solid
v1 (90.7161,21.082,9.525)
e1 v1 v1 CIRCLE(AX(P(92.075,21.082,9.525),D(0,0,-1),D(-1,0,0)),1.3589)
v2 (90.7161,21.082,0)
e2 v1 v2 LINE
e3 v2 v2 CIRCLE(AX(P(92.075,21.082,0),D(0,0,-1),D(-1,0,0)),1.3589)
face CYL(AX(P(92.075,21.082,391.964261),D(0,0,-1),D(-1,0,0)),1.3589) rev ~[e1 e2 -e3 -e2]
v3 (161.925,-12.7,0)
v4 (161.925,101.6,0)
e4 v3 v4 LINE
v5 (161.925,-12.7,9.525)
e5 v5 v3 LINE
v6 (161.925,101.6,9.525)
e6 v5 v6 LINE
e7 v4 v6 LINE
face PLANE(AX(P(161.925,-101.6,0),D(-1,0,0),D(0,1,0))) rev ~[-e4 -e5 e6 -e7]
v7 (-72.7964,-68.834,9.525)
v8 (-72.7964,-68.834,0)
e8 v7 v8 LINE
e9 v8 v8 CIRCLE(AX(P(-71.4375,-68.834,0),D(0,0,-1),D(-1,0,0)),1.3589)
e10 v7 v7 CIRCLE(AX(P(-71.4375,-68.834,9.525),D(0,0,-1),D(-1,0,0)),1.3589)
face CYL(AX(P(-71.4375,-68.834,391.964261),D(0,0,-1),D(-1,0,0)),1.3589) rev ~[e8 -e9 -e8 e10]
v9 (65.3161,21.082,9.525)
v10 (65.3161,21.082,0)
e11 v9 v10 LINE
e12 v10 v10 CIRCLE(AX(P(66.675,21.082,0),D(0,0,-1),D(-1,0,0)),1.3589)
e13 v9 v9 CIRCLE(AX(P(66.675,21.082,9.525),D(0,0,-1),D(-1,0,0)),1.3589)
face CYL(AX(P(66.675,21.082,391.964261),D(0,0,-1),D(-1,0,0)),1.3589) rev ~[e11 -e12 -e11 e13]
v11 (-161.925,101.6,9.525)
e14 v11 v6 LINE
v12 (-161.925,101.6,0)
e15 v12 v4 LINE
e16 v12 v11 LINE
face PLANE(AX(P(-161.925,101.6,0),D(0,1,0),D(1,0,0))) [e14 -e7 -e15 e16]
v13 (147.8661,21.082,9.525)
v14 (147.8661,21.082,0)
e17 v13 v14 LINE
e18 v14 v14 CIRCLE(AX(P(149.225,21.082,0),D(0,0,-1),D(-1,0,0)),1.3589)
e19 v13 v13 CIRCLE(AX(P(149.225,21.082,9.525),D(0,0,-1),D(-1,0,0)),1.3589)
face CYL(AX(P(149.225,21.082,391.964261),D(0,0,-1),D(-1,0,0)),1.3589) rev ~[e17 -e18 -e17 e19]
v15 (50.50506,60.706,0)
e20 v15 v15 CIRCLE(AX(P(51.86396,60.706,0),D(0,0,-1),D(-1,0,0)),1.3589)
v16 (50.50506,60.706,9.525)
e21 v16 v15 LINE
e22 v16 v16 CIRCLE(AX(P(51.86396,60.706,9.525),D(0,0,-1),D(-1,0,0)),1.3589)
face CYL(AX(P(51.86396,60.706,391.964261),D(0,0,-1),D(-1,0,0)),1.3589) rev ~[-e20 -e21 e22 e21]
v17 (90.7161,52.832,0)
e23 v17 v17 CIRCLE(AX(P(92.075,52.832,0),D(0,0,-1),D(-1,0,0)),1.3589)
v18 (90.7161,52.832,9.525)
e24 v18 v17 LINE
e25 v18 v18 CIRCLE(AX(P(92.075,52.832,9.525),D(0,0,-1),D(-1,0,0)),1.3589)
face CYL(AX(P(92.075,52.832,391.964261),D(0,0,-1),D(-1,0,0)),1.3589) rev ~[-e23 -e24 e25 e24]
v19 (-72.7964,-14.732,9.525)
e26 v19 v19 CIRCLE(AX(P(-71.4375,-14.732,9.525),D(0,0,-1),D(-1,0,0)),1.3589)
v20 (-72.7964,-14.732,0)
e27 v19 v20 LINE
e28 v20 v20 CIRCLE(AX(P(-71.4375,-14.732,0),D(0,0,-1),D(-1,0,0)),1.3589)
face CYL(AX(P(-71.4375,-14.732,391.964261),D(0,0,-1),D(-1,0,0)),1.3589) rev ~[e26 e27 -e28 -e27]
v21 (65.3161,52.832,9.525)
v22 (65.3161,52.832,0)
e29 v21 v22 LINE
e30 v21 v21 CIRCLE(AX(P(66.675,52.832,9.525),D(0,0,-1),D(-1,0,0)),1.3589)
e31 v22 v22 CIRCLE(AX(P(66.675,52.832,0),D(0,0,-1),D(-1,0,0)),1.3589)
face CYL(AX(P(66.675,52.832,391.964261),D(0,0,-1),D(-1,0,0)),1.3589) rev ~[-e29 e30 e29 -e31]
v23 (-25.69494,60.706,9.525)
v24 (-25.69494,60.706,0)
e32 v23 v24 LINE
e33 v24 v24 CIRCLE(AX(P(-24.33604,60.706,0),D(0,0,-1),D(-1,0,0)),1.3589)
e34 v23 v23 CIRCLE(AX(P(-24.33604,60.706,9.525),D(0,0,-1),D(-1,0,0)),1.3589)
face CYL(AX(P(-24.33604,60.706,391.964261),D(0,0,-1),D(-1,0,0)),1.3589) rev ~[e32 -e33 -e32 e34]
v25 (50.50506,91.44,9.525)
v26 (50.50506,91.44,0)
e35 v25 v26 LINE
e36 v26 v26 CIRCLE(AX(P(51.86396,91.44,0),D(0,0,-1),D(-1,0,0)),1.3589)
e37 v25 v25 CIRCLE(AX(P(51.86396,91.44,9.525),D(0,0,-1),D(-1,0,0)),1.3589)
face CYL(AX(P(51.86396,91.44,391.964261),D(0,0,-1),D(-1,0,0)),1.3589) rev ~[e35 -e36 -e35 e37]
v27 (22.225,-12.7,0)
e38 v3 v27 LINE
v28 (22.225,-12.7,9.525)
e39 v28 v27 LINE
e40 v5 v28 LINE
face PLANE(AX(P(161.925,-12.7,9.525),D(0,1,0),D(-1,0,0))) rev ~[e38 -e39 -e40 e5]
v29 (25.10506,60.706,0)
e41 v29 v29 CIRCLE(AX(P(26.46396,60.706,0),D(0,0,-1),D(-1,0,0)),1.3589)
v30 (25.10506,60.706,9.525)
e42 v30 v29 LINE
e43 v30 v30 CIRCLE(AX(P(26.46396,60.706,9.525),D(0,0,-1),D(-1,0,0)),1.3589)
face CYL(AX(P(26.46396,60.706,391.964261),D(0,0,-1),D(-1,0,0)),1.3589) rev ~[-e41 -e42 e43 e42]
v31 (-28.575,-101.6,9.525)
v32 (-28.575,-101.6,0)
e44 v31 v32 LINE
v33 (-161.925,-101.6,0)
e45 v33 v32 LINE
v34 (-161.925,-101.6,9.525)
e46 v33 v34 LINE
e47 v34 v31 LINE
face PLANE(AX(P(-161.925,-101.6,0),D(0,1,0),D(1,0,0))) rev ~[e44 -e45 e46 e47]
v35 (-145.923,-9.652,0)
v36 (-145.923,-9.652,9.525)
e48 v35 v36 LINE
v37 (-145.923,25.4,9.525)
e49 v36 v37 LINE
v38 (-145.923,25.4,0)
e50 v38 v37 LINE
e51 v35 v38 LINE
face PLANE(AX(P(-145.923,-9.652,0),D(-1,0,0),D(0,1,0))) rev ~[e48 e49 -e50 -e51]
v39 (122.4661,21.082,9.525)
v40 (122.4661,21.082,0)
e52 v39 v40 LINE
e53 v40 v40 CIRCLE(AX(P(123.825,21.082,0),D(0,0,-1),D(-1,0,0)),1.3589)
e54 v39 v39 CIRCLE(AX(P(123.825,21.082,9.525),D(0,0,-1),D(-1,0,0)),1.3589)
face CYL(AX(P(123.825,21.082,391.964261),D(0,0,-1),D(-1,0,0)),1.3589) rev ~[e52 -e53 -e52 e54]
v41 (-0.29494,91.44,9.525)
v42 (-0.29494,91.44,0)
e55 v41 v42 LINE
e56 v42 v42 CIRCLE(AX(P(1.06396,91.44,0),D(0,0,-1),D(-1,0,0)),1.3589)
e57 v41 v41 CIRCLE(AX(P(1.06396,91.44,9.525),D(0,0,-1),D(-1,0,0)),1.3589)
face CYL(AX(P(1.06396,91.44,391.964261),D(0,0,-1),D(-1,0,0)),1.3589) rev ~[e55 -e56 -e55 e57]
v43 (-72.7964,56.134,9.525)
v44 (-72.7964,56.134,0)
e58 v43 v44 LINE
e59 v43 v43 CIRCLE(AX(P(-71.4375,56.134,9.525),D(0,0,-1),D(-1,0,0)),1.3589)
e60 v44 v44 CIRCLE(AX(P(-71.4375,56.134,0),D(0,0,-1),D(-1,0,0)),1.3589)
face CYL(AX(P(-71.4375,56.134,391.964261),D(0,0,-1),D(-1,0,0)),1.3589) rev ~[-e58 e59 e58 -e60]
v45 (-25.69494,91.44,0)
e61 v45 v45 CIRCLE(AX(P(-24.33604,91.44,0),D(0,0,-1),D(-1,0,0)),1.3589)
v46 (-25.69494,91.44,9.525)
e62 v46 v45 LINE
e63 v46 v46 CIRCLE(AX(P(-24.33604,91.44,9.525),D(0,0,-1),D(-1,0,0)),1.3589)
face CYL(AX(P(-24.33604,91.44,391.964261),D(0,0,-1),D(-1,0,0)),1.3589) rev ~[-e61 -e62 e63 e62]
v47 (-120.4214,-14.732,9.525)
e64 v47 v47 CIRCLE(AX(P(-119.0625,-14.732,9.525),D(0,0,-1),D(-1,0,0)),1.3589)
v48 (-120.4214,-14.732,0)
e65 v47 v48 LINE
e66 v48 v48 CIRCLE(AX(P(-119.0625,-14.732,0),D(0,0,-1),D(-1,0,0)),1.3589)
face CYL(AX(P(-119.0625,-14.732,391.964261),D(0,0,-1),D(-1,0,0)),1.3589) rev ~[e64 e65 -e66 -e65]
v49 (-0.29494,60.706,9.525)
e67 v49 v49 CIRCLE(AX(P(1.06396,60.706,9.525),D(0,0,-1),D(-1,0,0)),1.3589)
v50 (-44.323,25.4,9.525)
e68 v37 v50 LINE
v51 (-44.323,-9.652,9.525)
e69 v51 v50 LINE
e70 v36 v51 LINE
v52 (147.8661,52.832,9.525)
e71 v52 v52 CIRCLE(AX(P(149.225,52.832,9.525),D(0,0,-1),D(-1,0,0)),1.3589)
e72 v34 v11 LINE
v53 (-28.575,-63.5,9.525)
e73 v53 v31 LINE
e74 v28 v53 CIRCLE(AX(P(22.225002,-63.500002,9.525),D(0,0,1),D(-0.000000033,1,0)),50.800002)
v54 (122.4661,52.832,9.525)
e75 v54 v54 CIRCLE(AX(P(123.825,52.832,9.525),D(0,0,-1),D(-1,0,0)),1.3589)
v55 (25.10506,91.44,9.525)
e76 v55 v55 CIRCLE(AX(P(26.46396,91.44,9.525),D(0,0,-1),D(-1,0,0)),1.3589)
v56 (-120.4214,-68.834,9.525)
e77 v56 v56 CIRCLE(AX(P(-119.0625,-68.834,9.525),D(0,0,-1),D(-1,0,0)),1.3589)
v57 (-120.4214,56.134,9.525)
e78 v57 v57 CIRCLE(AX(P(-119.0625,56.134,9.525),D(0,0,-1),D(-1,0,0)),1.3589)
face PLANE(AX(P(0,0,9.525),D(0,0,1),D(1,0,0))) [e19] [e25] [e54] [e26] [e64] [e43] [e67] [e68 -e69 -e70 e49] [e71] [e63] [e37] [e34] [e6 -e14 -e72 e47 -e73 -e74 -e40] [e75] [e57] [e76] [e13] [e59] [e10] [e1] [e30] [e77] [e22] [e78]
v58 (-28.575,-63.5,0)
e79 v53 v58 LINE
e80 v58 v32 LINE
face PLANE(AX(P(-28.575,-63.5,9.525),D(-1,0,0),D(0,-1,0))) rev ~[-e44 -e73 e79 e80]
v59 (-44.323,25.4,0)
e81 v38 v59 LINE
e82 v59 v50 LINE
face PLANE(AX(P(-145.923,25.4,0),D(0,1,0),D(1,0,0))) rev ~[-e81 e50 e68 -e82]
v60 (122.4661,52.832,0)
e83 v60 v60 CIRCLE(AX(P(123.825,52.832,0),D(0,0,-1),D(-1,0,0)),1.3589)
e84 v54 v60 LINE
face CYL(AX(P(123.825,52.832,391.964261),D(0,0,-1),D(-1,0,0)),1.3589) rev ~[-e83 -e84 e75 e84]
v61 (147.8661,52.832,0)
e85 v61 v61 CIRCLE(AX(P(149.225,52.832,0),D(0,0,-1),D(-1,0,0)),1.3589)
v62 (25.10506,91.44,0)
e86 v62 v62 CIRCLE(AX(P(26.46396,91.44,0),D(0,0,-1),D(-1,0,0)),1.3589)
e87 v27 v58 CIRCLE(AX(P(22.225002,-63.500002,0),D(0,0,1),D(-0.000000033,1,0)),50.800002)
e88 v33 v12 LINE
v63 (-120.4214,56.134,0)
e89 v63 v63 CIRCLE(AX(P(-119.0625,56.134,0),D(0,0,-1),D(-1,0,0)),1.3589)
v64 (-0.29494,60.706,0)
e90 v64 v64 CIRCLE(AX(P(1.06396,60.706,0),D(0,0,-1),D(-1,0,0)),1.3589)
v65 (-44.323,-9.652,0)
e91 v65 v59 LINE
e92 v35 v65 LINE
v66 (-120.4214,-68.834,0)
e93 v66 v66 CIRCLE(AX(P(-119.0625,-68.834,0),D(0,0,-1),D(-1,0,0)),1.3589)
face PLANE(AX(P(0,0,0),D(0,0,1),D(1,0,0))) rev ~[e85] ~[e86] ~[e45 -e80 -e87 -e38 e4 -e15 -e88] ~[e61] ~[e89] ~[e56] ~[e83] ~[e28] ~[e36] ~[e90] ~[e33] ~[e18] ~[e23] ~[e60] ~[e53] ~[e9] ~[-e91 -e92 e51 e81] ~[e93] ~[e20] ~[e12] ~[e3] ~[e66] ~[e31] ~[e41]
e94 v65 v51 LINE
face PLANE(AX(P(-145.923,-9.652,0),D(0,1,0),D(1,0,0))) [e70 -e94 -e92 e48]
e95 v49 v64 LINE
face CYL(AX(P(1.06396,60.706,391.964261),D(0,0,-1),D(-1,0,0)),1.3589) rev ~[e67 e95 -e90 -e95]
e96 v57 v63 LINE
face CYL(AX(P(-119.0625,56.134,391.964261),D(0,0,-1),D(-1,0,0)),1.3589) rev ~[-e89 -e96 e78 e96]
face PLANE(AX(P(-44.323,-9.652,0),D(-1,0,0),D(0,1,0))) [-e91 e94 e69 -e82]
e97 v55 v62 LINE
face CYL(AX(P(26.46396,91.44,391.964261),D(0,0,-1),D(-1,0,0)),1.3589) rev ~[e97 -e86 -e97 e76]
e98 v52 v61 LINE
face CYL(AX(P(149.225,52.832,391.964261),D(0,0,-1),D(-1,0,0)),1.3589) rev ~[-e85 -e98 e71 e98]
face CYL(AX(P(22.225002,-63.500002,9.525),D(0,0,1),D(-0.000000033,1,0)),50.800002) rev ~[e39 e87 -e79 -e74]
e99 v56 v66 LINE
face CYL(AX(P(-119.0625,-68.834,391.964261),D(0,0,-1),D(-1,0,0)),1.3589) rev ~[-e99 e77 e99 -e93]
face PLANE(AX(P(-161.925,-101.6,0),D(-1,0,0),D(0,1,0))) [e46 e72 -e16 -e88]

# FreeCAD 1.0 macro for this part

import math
import FreeCAD as App
import Part
import Sketcher
from FreeCAD import Vector
Q = App.Units.Quantity

doc = App.newDocument("Part")
params = doc.addObject("Spreadsheet::Sheet", "Params")
for row, (alias, value) in enumerate([
    ("sketch1_width", "4 in"),
    ("sketch1_height", "8 in"),
    ("sketch1_width2", "12.75 in"),
    ("sketch1_height2", "1.38 in"),
    ("pad1_length", "0.375 in"),
    ("sketch2_diameter", "0.107 in"),
    ("hole_diameter", "0.107 in"),
    ("sketch3_radius", "2.0000001 in"),
    ("sketch3_width", "5.5 in"),
    ("sketch3_height", "3.5 in"),
], start=1):
    params.set(f"A{row}", alias)
    params.set(f"B{row}", "=" + value)
    params.setAlias(f"B{row}", alias)

body = doc.addObject("PartDesign::Body", "Body")

# Sketch on XY plane
sketch1 = body.newObject("Sketcher::SketchObject", "Sketch")
sketch1.AttachmentSupport = (doc.getObject("XY_Plane"), [""])
sketch1.MapMode = "FlatFace"
sketch1.addGeometry(Part.LineSegment(Vector(-162, 102, 0), Vector(-162, -102, 0)), False)
sketch1.addGeometry(Part.LineSegment(Vector(-162, -102, 0), Vector(162, -102, 0)), False)
sketch1.addGeometry(Part.LineSegment(Vector(162, -102, 0), Vector(162, 102, 0)), False)
sketch1.addGeometry(Part.LineSegment(Vector(162, 102, 0), Vector(-162, 102, 0)), False)
sketch1.addGeometry(Part.LineSegment(Vector(-44, -10, 0), Vector(-146, -10, 0)), False)
sketch1.addGeometry(Part.LineSegment(Vector(-146, -10, 0), Vector(-146, 25, 0)), False)
sketch1.addGeometry(Part.LineSegment(Vector(-146, 25, 0), Vector(-44, 25, 0)), False)
sketch1.addGeometry(Part.LineSegment(Vector(-44, 25, 0), Vector(-44, -10, 0)), False)
sketch1.addConstraint(Sketcher.Constraint("Coincident", 0, 2, 1, 1))
sketch1.addConstraint(Sketcher.Constraint("Coincident", 1, 2, 2, 1))
sketch1.addConstraint(Sketcher.Constraint("Coincident", 2, 2, 3, 1))
sketch1.addConstraint(Sketcher.Constraint("Coincident", 3, 2, 0, 1))
sketch1.addConstraint(Sketcher.Constraint("Coincident", 4, 2, 5, 1))
sketch1.addConstraint(Sketcher.Constraint("Coincident", 5, 2, 6, 1))
sketch1.addConstraint(Sketcher.Constraint("Coincident", 6, 2, 7, 1))
sketch1.addConstraint(Sketcher.Constraint("Coincident", 7, 2, 4, 1))
sketch1.addConstraint(Sketcher.Constraint("Vertical", 0))
sketch1.addConstraint(Sketcher.Constraint("Horizontal", 1))
sketch1.addConstraint(Sketcher.Constraint("Vertical", 2))
sketch1.addConstraint(Sketcher.Constraint("Horizontal", 3))
sketch1.addConstraint(Sketcher.Constraint("Horizontal", 4))
sketch1.addConstraint(Sketcher.Constraint("Vertical", 5))
sketch1.addConstraint(Sketcher.Constraint("Horizontal", 6))
sketch1.addConstraint(Sketcher.Constraint("Vertical", 7))
sketch1.addConstraint(Sketcher.Constraint("Symmetric", 0, 2, 2, 2, -1, 1))
sketch1.addConstraint(Sketcher.Constraint("DistanceX", 4, 2, 4, 1, Q("4 in")))
sketch1.addConstraint(Sketcher.Constraint("DistanceY", 0, 2, 0, 1, Q("8 in")))
sketch1.addConstraint(Sketcher.Constraint("DistanceY", -1, 1, 5, 2, Q("1 in")))
sketch1.addConstraint(Sketcher.Constraint("DistanceX", 1, 1, 1, 2, Q("12.75 in")))
sketch1.addConstraint(Sketcher.Constraint("DistanceY", 5, 1, 5, 2, Q("1.38 in")))
sketch1.addConstraint(Sketcher.Constraint("DistanceX", 0, 2, 4, 2, Q("0.63 in")))
sketch1.setExpression("Constraints[17]", "Params.sketch1_width")
sketch1.setExpression("Constraints[18]", "Params.sketch1_height")
sketch1.setExpression("Constraints[20]", "Params.sketch1_width2")
sketch1.setExpression("Constraints[21]", "Params.sketch1_height2")
pad1 = body.newObject("PartDesign::Pad", "Pad")
pad1.Profile = sketch1
pad1.setExpression("Length", "Params.pad1_length")

# Sketch on XY plane
sketch2 = body.newObject("Sketcher::SketchObject", "Sketch001")
sketch2.AttachmentSupport = (doc.getObject("XY_Plane"), [""])
sketch2.MapMode = "FlatFace"
sketch2.AttachmentOffset = App.Placement(Vector(0, 0, 0.375 * 25.4), App.Rotation())
sketch2.addGeometry(Part.Circle(Vector(-119.1, 56.1, 0), Vector(0, 0, 1), 1.4), False)
sketch2.addGeometry(Part.Circle(Vector(-71.4, 56.1, 0), Vector(0, 0, 1), 1.4), False)
sketch2.addGeometry(Part.Circle(Vector(-119.1, -14.7, 0), Vector(0, 0, 1), 1.4), False)
sketch2.addGeometry(Part.Circle(Vector(-71.4, -14.7, 0), Vector(0, 0, 1), 1.4), False)
sketch2.addGeometry(Part.Circle(Vector(-119.1, -68.8, 0), Vector(0, 0, 1), 1.4), False)
sketch2.addGeometry(Part.Circle(Vector(-71.4, -68.8, 0), Vector(0, 0, 1), 1.4), False)
sketch2.addGeometry(Part.Circle(Vector(-24.3, 60.7, 0), Vector(0, 0, 1), 1.4), False)
sketch2.addGeometry(Part.Circle(Vector(-24.3, 91.4, 0), Vector(0, 0, 1), 1.4), False)
sketch2.addGeometry(Part.Circle(Vector(1.1, 91.4, 0), Vector(0, 0, 1), 1.4), False)
sketch2.addGeometry(Part.Circle(Vector(1.1, 60.7, 0), Vector(0, 0, 1), 1.4), False)
sketch2.addGeometry(Part.Circle(Vector(26.5, 60.7, 0), Vector(0, 0, 1), 1.4), False)
sketch2.addGeometry(Part.Circle(Vector(26.5, 91.4, 0), Vector(0, 0, 1), 1.4), False)
sketch2.addGeometry(Part.Circle(Vector(51.9, 91.4, 0), Vector(0, 0, 1), 1.4), False)
sketch2.addGeometry(Part.Circle(Vector(51.9, 60.7, 0), Vector(0, 0, 1), 1.4), False)
sketch2.addGeometry(Part.Circle(Vector(66.7, 52.8, 0), Vector(0, 0, 1), 1.4), False)
sketch2.addGeometry(Part.Circle(Vector(66.7, 21.1, 0), Vector(0, 0, 1), 1.4), False)
sketch2.addGeometry(Part.Circle(Vector(92.1, 21.1, 0), Vector(0, 0, 1), 1.4), False)
sketch2.addGeometry(Part.Circle(Vector(92.1, 52.8, 0), Vector(0, 0, 1), 1.4), False)
sketch2.addGeometry(Part.Circle(Vector(123.8, 52.8, 0), Vector(0, 0, 1), 1.4), False)
sketch2.addGeometry(Part.Circle(Vector(123.8, 21.1, 0), Vector(0, 0, 1), 1.4), False)
sketch2.addGeometry(Part.Circle(Vector(92.1, 52.8, 0), Vector(0, 0, 1), 1.4), False)
sketch2.addGeometry(Part.Circle(Vector(149.2, 52.8, 0), Vector(0, 0, 1), 1.4), False)
sketch2.addGeometry(Part.Circle(Vector(149.2, 21.1, 0), Vector(0, 0, 1), 1.4), False)
sketch2.addConstraint(Sketcher.Constraint("Coincident", 20, 3, 17, 3))
sketch2.addConstraint(Sketcher.Constraint("Equal", 0, 1))
sketch2.addConstraint(Sketcher.Constraint("Equal", 1, 2))
sketch2.addConstraint(Sketcher.Constraint("Equal", 2, 3))
sketch2.addConstraint(Sketcher.Constraint("Equal", 3, 4))
sketch2.addConstraint(Sketcher.Constraint("Equal", 4, 5))
sketch2.addConstraint(Sketcher.Constraint("Equal", 5, 6))
sketch2.addConstraint(Sketcher.Constraint("Equal", 6, 7))
sketch2.addConstraint(Sketcher.Constraint("Equal", 7, 8))
sketch2.addConstraint(Sketcher.Constraint("Equal", 8, 9))
sketch2.addConstraint(Sketcher.Constraint("Equal", 9, 10))
sketch2.addConstraint(Sketcher.Constraint("Equal", 10, 11))
sketch2.addConstraint(Sketcher.Constraint("Equal", 11, 12))
sketch2.addConstraint(Sketcher.Constraint("Equal", 12, 13))
sketch2.addConstraint(Sketcher.Constraint("Equal", 13, 14))
sketch2.addConstraint(Sketcher.Constraint("Equal", 14, 15))
sketch2.addConstraint(Sketcher.Constraint("Equal", 15, 16))
sketch2.addConstraint(Sketcher.Constraint("Equal", 16, 17))
sketch2.addConstraint(Sketcher.Constraint("Equal", 17, 18))
sketch2.addConstraint(Sketcher.Constraint("Equal", 18, 19))
sketch2.addConstraint(Sketcher.Constraint("Equal", 19, 20))
sketch2.addConstraint(Sketcher.Constraint("Equal", 20, 21))
sketch2.addConstraint(Sketcher.Constraint("Equal", 21, 22))
sketch2.addConstraint(Sketcher.Constraint("Horizontal", 0, 3, 1, 3))
sketch2.addConstraint(Sketcher.Constraint("Horizontal", 2, 3, 3, 3))
sketch2.addConstraint(Sketcher.Constraint("Horizontal", 4, 3, 5, 3))
sketch2.addConstraint(Sketcher.Constraint("Horizontal", 7, 3, 8, 3))
sketch2.addConstraint(Sketcher.Constraint("Horizontal", 6, 3, 9, 3))
sketch2.addConstraint(Sketcher.Constraint("Horizontal", 9, 3, 10, 3))
sketch2.addConstraint(Sketcher.Constraint("Horizontal", 8, 3, 11, 3))
sketch2.addConstraint(Sketcher.Constraint("Horizontal", 11, 3, 12, 3))
sketch2.addConstraint(Sketcher.Constraint("Horizontal", 10, 3, 13, 3))
sketch2.addConstraint(Sketcher.Constraint("Horizontal", 15, 3, 16, 3))
sketch2.addConstraint(Sketcher.Constraint("Horizontal", 14, 3, 17, 3))
sketch2.addConstraint(Sketcher.Constraint("Horizontal", 17, 3, 18, 3))
sketch2.addConstraint(Sketcher.Constraint("Horizontal", 16, 3, 19, 3))
sketch2.addConstraint(Sketcher.Constraint("Horizontal", 20, 3, 21, 3))
sketch2.addConstraint(Sketcher.Constraint("Horizontal", 19, 3, 22, 3))
sketch2.addConstraint(Sketcher.Constraint("Vertical", 0, 3, 2, 3))
sketch2.addConstraint(Sketcher.Constraint("Vertical", 1, 3, 3, 3))
sketch2.addConstraint(Sketcher.Constraint("Vertical", 2, 3, 4, 3))
sketch2.addConstraint(Sketcher.Constraint("Vertical", 3, 3, 5, 3))
sketch2.addConstraint(Sketcher.Constraint("Vertical", 6, 3, 7, 3))
sketch2.addConstraint(Sketcher.Constraint("Vertical", 8, 3, 9, 3))
sketch2.addConstraint(Sketcher.Constraint("Vertical", 10, 3, 11, 3))
sketch2.addConstraint(Sketcher.Constraint("Vertical", 12, 3, 13, 3))
sketch2.addConstraint(Sketcher.Constraint("Vertical", 14, 3, 15, 3))
sketch2.addConstraint(Sketcher.Constraint("Vertical", 16, 3, 17, 3))
sketch2.addConstraint(Sketcher.Constraint("Vertical", 18, 3, 19, 3))
sketch2.addConstraint(Sketcher.Constraint("Vertical", 21, 3, 22, 3))
sketch2.addConstraint(Sketcher.Constraint("Diameter", 0, Q("0.107 in")))
sketch2.addConstraint(Sketcher.Constraint("DistanceX", 7, 3, 8, 3, Q("1 in")))
sketch2.addConstraint(Sketcher.Constraint("DistanceX", 9, 3, 10, 3, Q("1 in")))
sketch2.addConstraint(Sketcher.Constraint("DistanceX", 11, 3, 12, 3, Q("1 in")))
sketch2.addConstraint(Sketcher.Constraint("DistanceX", 15, 3, 16, 3, Q("1 in")))
sketch2.addConstraint(Sketcher.Constraint("DistanceX", 18, 3, 21, 3, Q("1 in")))
sketch2.addConstraint(Sketcher.Constraint("DistanceY", -1, 1, 7, 3, Q("3.6 in")))
sketch2.addConstraint(Sketcher.Constraint("DistanceY", 5, 3, 6, 3, Q("5.1 in")))
sketch2.addConstraint(Sketcher.Constraint("DistanceY", -1, 1, 0, 3, Q("2.21 in")))
sketch2.addConstraint(Sketcher.Constraint("DistanceY", 2, 3, -1, 1, Q("0.58 in")))
sketch2.addConstraint(Sketcher.Constraint("DistanceY", 4, 3, -1, 1, Q("2.71 in")))
sketch2.addConstraint(Sketcher.Constraint("DistanceY", -1, 1, 14, 3, Q("2.08 in")))
sketch2.addConstraint(Sketcher.Constraint("DistanceY", -1, 1, 15, 3, Q("0.83 in")))
sketch2.addConstraint(Sketcher.Constraint("DistanceX", 17, 3, 18, 3, Q("1.25 in")))
sketch2.addConstraint(Sketcher.Constraint("DistanceX", 0, 3, -1, 1, Q("4.6875 in")))
sketch2.addConstraint(Sketcher.Constraint("DistanceX", 1, 3, -1, 1, Q("2.8125 in")))
sketch2.addConstraint(Sketcher.Constraint("DistanceX", -1, 1, 14, 3, Q("2.625 in")))
sketch2.addConstraint(Sketcher.Constraint("DistanceX", 6, 3, -1, 1, Q("24.33604 mm")))
sketch2.setExpression("Constraints[50]", "Params.sketch2_diameter")
doc.recompute()
hole = body.newObject("PartDesign::Hole", "Hole")
hole.Profile = sketch2
hole.ThreadType = "None"
hole.setExpression("Diameter", "Params.hole_diameter")
hole.DepthType = "ThroughAll"

# Sketch on XY plane
sketch3 = body.newObject("Sketcher::SketchObject", "Sketch002")
sketch3.AttachmentSupport = (doc.getObject("XY_Plane"), [""])
sketch3.MapMode = "FlatFace"
sketch3.AttachmentOffset = App.Placement(Vector(0, 0, 0.375 * 25.4), App.Rotation())
sketch3.addGeometry(Part.LineSegment(Vector(162, -102, 0), Vector(162, -13, 0)), False)
sketch3.addGeometry(Part.LineSegment(Vector(162, -13, 0), Vector(22, -13, 0)), False)
sketch3.addGeometry(Part.ArcOfCircle(Part.Circle(Vector(22, -64, 0), Vector(0, 0, 1), 51), math.radians(90), math.radians(180)), False)
sketch3.addGeometry(Part.LineSegment(Vector(-29, -64, 0), Vector(-29, -102, 0)), False)
sketch3.addGeometry(Part.LineSegment(Vector(-29, -102, 0), Vector(162, -102, 0)), False)
sketch3.addConstraint(Sketcher.Constraint("Coincident", 0, 2, 1, 1))
sketch3.addConstraint(Sketcher.Constraint("Tangent", 1, 2, 2, 1))
sketch3.addConstraint(Sketcher.Constraint("Tangent", 2, 2, 3, 1))
sketch3.addConstraint(Sketcher.Constraint("Coincident", 3, 2, 4, 1))
sketch3.addConstraint(Sketcher.Constraint("Coincident", 4, 2, 0, 1))
sketch3.addConstraint(Sketcher.Constraint("Vertical", 0))
sketch3.addConstraint(Sketcher.Constraint("Horizontal", 1))
sketch3.addConstraint(Sketcher.Constraint("Vertical", 3))
sketch3.addConstraint(Sketcher.Constraint("Horizontal", 4))
sketch3.addConstraint(Sketcher.Constraint("Radius", 2, Q("2.0000001 in")))
sketch3.addConstraint(Sketcher.Constraint("DistanceX", 1, 2, 1, 1, Q("5.5 in")))
sketch3.addConstraint(Sketcher.Constraint("DistanceY", 0, 1, 0, 2, Q("3.5 in")))
sketch3.addConstraint(Sketcher.Constraint("DistanceY", 3, 2, -1, 1, Q("4 in")))
sketch3.addConstraint(Sketcher.Constraint("DistanceX", -1, 1, 2, 3, Q("0.8750001 in")))
sketch3.setExpression("Constraints[9]", "Params.sketch3_radius")
sketch3.setExpression("Constraints[10]", "Params.sketch3_width")
sketch3.setExpression("Constraints[11]", "Params.sketch3_height")
pocket1 = body.newObject("PartDesign::Pocket", "Pocket")
pocket1.Profile = sketch3
pocket1.Type = "ThroughAll"

doc.recompute()
